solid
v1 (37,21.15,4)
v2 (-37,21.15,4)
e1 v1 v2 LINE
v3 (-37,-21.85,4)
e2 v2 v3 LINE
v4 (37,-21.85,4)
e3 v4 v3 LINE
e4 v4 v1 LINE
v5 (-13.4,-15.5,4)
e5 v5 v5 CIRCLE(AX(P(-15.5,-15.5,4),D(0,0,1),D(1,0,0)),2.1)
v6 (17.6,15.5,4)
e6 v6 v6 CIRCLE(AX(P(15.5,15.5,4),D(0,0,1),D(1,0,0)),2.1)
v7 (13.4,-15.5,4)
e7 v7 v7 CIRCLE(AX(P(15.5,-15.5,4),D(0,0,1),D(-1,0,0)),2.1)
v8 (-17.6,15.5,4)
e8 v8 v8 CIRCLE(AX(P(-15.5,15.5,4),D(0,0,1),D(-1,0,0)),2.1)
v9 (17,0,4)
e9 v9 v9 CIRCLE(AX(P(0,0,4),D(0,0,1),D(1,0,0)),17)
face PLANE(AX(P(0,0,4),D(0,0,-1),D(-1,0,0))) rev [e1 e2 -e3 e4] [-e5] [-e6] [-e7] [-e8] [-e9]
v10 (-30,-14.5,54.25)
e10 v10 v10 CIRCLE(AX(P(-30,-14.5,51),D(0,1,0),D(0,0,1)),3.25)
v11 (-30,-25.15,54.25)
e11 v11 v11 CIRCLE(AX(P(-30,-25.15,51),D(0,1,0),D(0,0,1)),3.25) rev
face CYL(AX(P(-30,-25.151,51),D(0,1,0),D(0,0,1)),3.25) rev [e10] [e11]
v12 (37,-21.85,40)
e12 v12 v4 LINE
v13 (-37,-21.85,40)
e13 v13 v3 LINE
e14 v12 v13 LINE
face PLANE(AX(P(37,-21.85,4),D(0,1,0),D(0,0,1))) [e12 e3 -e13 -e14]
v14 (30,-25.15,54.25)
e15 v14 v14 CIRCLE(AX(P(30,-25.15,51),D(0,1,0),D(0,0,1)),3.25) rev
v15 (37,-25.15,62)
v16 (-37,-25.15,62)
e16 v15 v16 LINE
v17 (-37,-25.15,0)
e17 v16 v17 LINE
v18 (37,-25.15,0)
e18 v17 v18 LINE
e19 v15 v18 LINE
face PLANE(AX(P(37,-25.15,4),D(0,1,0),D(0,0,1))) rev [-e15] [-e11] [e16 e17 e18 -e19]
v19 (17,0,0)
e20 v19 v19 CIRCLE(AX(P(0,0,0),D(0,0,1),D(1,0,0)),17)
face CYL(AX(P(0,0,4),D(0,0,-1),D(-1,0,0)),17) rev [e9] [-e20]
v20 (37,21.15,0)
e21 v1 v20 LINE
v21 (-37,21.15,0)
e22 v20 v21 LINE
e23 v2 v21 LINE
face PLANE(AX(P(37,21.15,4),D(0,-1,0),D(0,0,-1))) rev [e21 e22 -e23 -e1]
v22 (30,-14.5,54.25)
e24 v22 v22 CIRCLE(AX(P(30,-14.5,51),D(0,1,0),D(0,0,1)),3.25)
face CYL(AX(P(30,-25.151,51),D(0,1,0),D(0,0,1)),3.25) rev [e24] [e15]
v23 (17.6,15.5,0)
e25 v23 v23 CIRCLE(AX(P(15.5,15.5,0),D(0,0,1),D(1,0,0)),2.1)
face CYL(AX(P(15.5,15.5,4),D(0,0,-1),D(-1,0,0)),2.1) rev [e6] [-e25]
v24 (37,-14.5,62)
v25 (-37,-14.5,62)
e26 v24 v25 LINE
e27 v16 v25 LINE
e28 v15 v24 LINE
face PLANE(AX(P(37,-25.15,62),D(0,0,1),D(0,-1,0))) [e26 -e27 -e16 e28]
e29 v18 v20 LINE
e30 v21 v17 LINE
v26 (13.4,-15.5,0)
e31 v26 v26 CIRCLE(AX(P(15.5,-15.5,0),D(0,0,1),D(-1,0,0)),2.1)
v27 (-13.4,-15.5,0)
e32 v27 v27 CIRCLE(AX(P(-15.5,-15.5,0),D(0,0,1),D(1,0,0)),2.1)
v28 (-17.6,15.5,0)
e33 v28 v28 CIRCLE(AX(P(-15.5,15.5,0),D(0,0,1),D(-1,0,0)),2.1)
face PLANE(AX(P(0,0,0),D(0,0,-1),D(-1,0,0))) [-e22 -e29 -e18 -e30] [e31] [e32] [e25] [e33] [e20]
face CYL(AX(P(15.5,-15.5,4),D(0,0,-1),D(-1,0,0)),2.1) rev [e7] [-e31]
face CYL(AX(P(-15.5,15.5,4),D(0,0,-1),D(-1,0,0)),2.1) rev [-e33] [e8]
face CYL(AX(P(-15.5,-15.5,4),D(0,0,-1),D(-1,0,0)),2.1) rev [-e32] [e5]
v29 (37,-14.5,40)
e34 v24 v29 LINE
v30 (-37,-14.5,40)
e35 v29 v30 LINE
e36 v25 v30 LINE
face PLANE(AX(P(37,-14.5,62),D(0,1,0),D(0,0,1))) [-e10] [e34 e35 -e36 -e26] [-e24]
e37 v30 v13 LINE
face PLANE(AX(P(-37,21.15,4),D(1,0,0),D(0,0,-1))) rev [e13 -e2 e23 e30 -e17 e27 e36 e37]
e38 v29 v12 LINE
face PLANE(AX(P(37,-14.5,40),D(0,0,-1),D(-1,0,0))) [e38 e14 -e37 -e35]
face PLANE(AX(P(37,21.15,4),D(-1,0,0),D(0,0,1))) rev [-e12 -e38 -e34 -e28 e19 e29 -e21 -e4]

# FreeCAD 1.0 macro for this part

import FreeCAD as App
import Part
import Sketcher
from FreeCAD import Vector
Q = App.Units.Quantity


def add_polygon(sketch, points):
    """Adds a closed chain of lines whose ends are joined by coincident constraints."""
    first, n = sketch.GeometryCount, len(points)
    for a, b in zip(points, points[1:] + points[:1]):
        sketch.addGeometry(Part.LineSegment(App.Vector(*a, 0), App.Vector(*b, 0)), False)
    for i in range(n):
        sketch.addConstraint(Sketcher.Constraint("Coincident", first + i, 2, first + (i + 1) % n, 1))

doc = App.newDocument("Part")
body = doc.addObject("PartDesign::Body", "Body")

# Sketch on XY plane
sketch1 = doc.addObject("Sketcher::SketchObject", "Sketch")
body.addObject(sketch1)
sketch1.AttachmentSupport = (doc.XY_Plane, [""])
sketch1.MapMode = "FlatFace"
add_polygon(sketch1, [(-37, 21.15), (-37, -25.15), (37, -25.15), (37, 21.15)])  # lines 0-3
sketch1.addGeometry(Part.Circle(Vector(-15.5, -15.5, 0), Vector(0, 0, 1), 2.1), False)  # 4
sketch1.addGeometry(Part.Circle(Vector(15.5, -15.5, 0), Vector(0, 0, 1), 2.1), False)  # 5
sketch1.addGeometry(Part.Circle(Vector(-15.5, 15.5, 0), Vector(0, 0, 1), 2.1), False)  # 6
sketch1.addGeometry(Part.Circle(Vector(0, 0, 0), Vector(0, 0, 1), 17), False)  # 7
sketch1.addGeometry(Part.Circle(Vector(15.5, 15.5, 0), Vector(0, 0, 1), 2.1), False)  # 8
sketch1.addConstraint(Sketcher.Constraint("Vertical", 0))
sketch1.addConstraint(Sketcher.Constraint("Horizontal", 1))
sketch1.addConstraint(Sketcher.Constraint("Vertical", 2))
sketch1.addConstraint(Sketcher.Constraint("Horizontal", 3))
sketch1.addConstraint(Sketcher.Constraint("Coincident", 7, 3, -1, 1))
sketch1.addConstraint(Sketcher.Constraint("Equal", 4, 5))
sketch1.addConstraint(Sketcher.Constraint("Equal", 5, 6))
sketch1.addConstraint(Sketcher.Constraint("Equal", 6, 8))
sketch1.addConstraint(Sketcher.Constraint("Symmetric", 5, 3, 6, 3, -1, 1))
sketch1.addConstraint(Sketcher.Constraint("Symmetric", 4, 3, 8, 3, -1, 1))
sketch1.addConstraint(Sketcher.Constraint("Symmetric", 4, 3, 5, 3, -2))
sketch1.addConstraint(Sketcher.Constraint("Diameter", 7, Q("34 mm")))
sketch1.addConstraint(Sketcher.Constraint("Diameter", 4, Q("4.2 mm")))
sketch1.addConstraint(Sketcher.Constraint("DistanceX", 1, 1, 1, 2, Q("74 mm")))
sketch1.addConstraint(Sketcher.Constraint("DistanceY", 0, 2, 0, 1, Q("46.3 mm")))
sketch1.addConstraint(Sketcher.Constraint("DistanceX", 0, 2, -1, 1, Q("37 mm")))
sketch1.addConstraint(Sketcher.Constraint("DistanceX", 4, 3, 5, 3, Q("31 mm")))
sketch1.addConstraint(Sketcher.Constraint("DistanceY", 4, 3, 6, 3, Q("31 mm")))
sketch1.addConstraint(Sketcher.Constraint("DistanceY", 0, 2, -1, 1, Q("25.15 mm")))
pad1 = doc.addObject("PartDesign::Pad", "Pad")
body.addObject(pad1)
pad1.Profile = sketch1
pad1.Length = 4

# Sketch on YZ plane
sketch2 = doc.addObject("Sketcher::SketchObject", "Sketch001")
body.addObject(sketch2)
sketch2.AttachmentSupport = (doc.YZ_Plane, [""])
sketch2.MapMode = "FlatFace"
sketch2.AttachmentOffset = App.Placement(Vector(0, 0, -37), App.Rotation())
add_polygon(sketch2, [(-25.15, 4), (-25.15, 62), (-14.5, 62), (-14.5, 40), (-21.85, 40), (-21.85, 4)])  # lines 0-5
sketch2.addConstraint(Sketcher.Constraint("Vertical", 0))
sketch2.addConstraint(Sketcher.Constraint("Horizontal", 1))
sketch2.addConstraint(Sketcher.Constraint("Vertical", 2))
sketch2.addConstraint(Sketcher.Constraint("Horizontal", 3))
sketch2.addConstraint(Sketcher.Constraint("Vertical", 4))
sketch2.addConstraint(Sketcher.Constraint("Horizontal", 5))
sketch2.addConstraint(Sketcher.Constraint("DistanceY", 0, 1, 0, 2, Q("58 mm")))
sketch2.addConstraint(Sketcher.Constraint("DistanceY", 2, 2, 2, 1, Q("22 mm")))
sketch2.addConstraint(Sketcher.Constraint("DistanceX", 5, 2, 5, 1, Q("3.3 mm")))
sketch2.addConstraint(Sketcher.Constraint("DistanceY", -1, 1, 0, 2, Q("62 mm")))
sketch2.addConstraint(Sketcher.Constraint("DistanceX", 1, 1, 1, 2, Q("10.65 mm")))
sketch2.addConstraint(Sketcher.Constraint("DistanceX", 1, 2, -1, 1, Q("14.5 mm")))
pad2 = doc.addObject("PartDesign::Pad", "Pad001")
body.addObject(pad2)
pad2.Profile = sketch2
pad2.Length = 74

# Sketch on XZ plane
sketch3 = doc.addObject("Sketcher::SketchObject", "Sketch002")
body.addObject(sketch3)
sketch3.AttachmentSupport = (doc.XZ_Plane, [""])
sketch3.MapMode = "FlatFace"
sketch3.AttachmentOffset = App.Placement(Vector(0, 0, 14.5), App.Rotation())
sketch3.addGeometry(Part.Circle(Vector(-30, 51, 0), Vector(0, 0, 1), 3.25), False)
sketch3.addConstraint(Sketcher.Constraint("Diameter", 0, Q("6.5 mm")))
sketch3.addConstraint(Sketcher.Constraint("DistanceX", 0, 3, -1, 1, Q("30 mm")))
sketch3.addConstraint(Sketcher.Constraint("DistanceY", -1, 1, 0, 3, Q("51 mm")))
pocket1 = doc.addObject("PartDesign::Pocket", "Pocket")
body.addObject(pocket1)
pocket1.Profile = sketch3
pocket1.Type = "UpToFirst"
pocket1.Reversed = True

# Sketch on XZ plane
sketch4 = doc.addObject("Sketcher::SketchObject", "Sketch003")
body.addObject(sketch4)
sketch4.AttachmentSupport = (doc.XZ_Plane, [""])
sketch4.MapMode = "FlatFace"
sketch4.AttachmentOffset = App.Placement(Vector(0, 0, 14.5), App.Rotation())
sketch4.addGeometry(Part.Circle(Vector(30, 51, 0), Vector(0, 0, 1), 3.25), False)
sketch4.addConstraint(Sketcher.Constraint("Diameter", 0, Q("6.5 mm")))
sketch4.addConstraint(Sketcher.Constraint("DistanceX", -1, 1, 0, 3, Q("30 mm")))
sketch4.addConstraint(Sketcher.Constraint("DistanceY", -1, 1, 0, 3, Q("51 mm")))
pocket2 = doc.addObject("PartDesign::Pocket", "Pocket001")
body.addObject(pocket2)
pocket2.Profile = sketch4
pocket2.Type = "UpToFirst"
pocket2.Reversed = True

doc.recompute()
